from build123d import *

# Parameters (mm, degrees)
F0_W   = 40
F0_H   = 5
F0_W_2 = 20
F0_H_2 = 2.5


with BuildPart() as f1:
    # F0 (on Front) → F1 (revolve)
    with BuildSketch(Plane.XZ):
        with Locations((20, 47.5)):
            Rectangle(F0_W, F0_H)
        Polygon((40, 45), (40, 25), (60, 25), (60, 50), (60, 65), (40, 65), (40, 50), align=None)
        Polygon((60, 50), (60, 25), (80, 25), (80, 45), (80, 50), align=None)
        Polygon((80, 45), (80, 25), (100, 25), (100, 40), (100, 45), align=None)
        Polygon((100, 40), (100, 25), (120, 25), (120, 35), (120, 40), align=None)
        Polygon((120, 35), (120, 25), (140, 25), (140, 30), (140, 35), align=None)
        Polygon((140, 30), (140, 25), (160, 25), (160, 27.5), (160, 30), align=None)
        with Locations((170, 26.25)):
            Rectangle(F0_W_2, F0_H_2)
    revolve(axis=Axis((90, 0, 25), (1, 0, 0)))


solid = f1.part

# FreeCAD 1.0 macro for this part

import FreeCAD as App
import Part
import Sketcher

V = App.Vector
Q = App.Units.Quantity

doc = App.newDocument("Part")
params = doc.addObject("Spreadsheet::Sheet", "Params")
for row, (alias, value) in enumerate([
    ("sketch1_width", "40 mm"),
    ("sketch1_width2", "140 mm"),
    ("sketch1_height", "5 mm"),
    ("sketch1_height2", "15 mm"),
    ("revolution_angle", "360 deg"),
], start=1):
    params.set(f"A{row}", alias)
    params.set(f"B{row}", "=" + value)
    params.setAlias(f"B{row}", alias)

body = doc.addObject("PartDesign::Body", "Body")

sketch1 = body.newObject("Sketcher::SketchObject", "Sketch")
sketch1.AttachmentSupport = (doc.getObject("XZ_Plane"), [""])
sketch1.MapMode = "FlatFace"
sketch1.addGeometry(Part.LineSegment(V(0, 50, 0), V(0, 45, 0)), False)
sketch1.addGeometry(Part.LineSegment(V(0, 45, 0), V(40, 45, 0)), False)
sketch1.addGeometry(Part.LineSegment(V(40, 45, 0), V(40, 25, 0)), False)
sketch1.addGeometry(Part.LineSegment(V(40, 25, 0), V(180, 25, 0)), False)
sketch1.addGeometry(Part.LineSegment(V(180, 25, 0), V(180, 27.5, 0)), False)
sketch1.addGeometry(Part.LineSegment(V(180, 27.5, 0), V(160, 27.5, 0)), False)
sketch1.addGeometry(Part.LineSegment(V(160, 27.5, 0), V(160, 30, 0)), False)
sketch1.addGeometry(Part.LineSegment(V(160, 30, 0), V(140, 30, 0)), False)
sketch1.addGeometry(Part.LineSegment(V(140, 30, 0), V(140, 35, 0)), False)
sketch1.addGeometry(Part.LineSegment(V(140, 35, 0), V(120, 35, 0)), False)
sketch1.addGeometry(Part.LineSegment(V(120, 35, 0), V(120, 40, 0)), False)
sketch1.addGeometry(Part.LineSegment(V(120, 40, 0), V(100, 40, 0)), False)
sketch1.addGeometry(Part.LineSegment(V(100, 40, 0), V(100, 45, 0)), False)
sketch1.addGeometry(Part.LineSegment(V(100, 45, 0), V(80, 45, 0)), False)
sketch1.addGeometry(Part.LineSegment(V(80, 45, 0), V(80, 50, 0)), False)
sketch1.addGeometry(Part.LineSegment(V(80, 50, 0), V(60, 50, 0)), False)
sketch1.addGeometry(Part.LineSegment(V(60, 50, 0), V(60, 65, 0)), False)
sketch1.addGeometry(Part.LineSegment(V(60, 65, 0), V(40, 65, 0)), False)
sketch1.addGeometry(Part.LineSegment(V(40, 65, 0), V(40, 50, 0)), False)
sketch1.addGeometry(Part.LineSegment(V(40, 50, 0), V(0, 50, 0)), False)
sketch1.addGeometry(Part.LineSegment(V(0, 25, 0), V(180, 25, 0)), True)
sketch1.addConstraint(Sketcher.Constraint("Coincident", 0, 2, 1, 1))
sketch1.addConstraint(Sketcher.Constraint("Coincident", 1, 2, 2, 1))
sketch1.addConstraint(Sketcher.Constraint("Coincident", 2, 2, 3, 1))
sketch1.addConstraint(Sketcher.Constraint("Coincident", 3, 2, 4, 1))
sketch1.addConstraint(Sketcher.Constraint("Coincident", 4, 2, 5, 1))
sketch1.addConstraint(Sketcher.Constraint("Coincident", 5, 2, 6, 1))
sketch1.addConstraint(Sketcher.Constraint("Coincident", 6, 2, 7, 1))
sketch1.addConstraint(Sketcher.Constraint("Coincident", 7, 2, 8, 1))
sketch1.addConstraint(Sketcher.Constraint("Coincident", 8, 2, 9, 1))
sketch1.addConstraint(Sketcher.Constraint("Coincident", 9, 2, 10, 1))
sketch1.addConstraint(Sketcher.Constraint("Coincident", 10, 2, 11, 1))
sketch1.addConstraint(Sketcher.Constraint("Coincident", 11, 2, 12, 1))
sketch1.addConstraint(Sketcher.Constraint("Coincident", 12, 2, 13, 1))
sketch1.addConstraint(Sketcher.Constraint("Coincident", 13, 2, 14, 1))
sketch1.addConstraint(Sketcher.Constraint("Coincident", 14, 2, 15, 1))
sketch1.addConstraint(Sketcher.Constraint("Coincident", 15, 2, 16, 1))
sketch1.addConstraint(Sketcher.Constraint("Coincident", 16, 2, 17, 1))
sketch1.addConstraint(Sketcher.Constraint("Coincident", 17, 2, 18, 1))
sketch1.addConstraint(Sketcher.Constraint("Coincident", 18, 2, 19, 1))
sketch1.addConstraint(Sketcher.Constraint("Coincident", 19, 2, 0, 1))
sketch1.addConstraint(Sketcher.Constraint("Vertical", 0))
sketch1.addConstraint(Sketcher.Constraint("Horizontal", 1))
sketch1.addConstraint(Sketcher.Constraint("Vertical", 2))
sketch1.addConstraint(Sketcher.Constraint("Horizontal", 3))
sketch1.addConstraint(Sketcher.Constraint("Vertical", 4))
sketch1.addConstraint(Sketcher.Constraint("Horizontal", 5))
sketch1.addConstraint(Sketcher.Constraint("Vertical", 6))
sketch1.addConstraint(Sketcher.Constraint("Horizontal", 7))
sketch1.addConstraint(Sketcher.Constraint("Vertical", 8))
sketch1.addConstraint(Sketcher.Constraint("Horizontal", 9))
sketch1.addConstraint(Sketcher.Constraint("Vertical", 10))
sketch1.addConstraint(Sketcher.Constraint("Horizontal", 11))
sketch1.addConstraint(Sketcher.Constraint("Vertical", 12))
sketch1.addConstraint(Sketcher.Constraint("Horizontal", 13))
sketch1.addConstraint(Sketcher.Constraint("Vertical", 14))
sketch1.addConstraint(Sketcher.Constraint("Horizontal", 15))
sketch1.addConstraint(Sketcher.Constraint("Vertical", 16))
sketch1.addConstraint(Sketcher.Constraint("Horizontal", 17))
sketch1.addConstraint(Sketcher.Constraint("Vertical", 18))
sketch1.addConstraint(Sketcher.Constraint("Horizontal", 19))
sketch1.addConstraint(Sketcher.Constraint("Horizontal", 20))
sketch1.addConstraint(Sketcher.Constraint("Coincident", 20, 2, 3, 2))
sketch1.addConstraint(Sketcher.Constraint("PointOnObject", 0, 2, -2))
sketch1.addConstraint(Sketcher.Constraint("PointOnObject", 20, 1, -2))
sketch1.addConstraint(Sketcher.Constraint("Horizontal", 1, 2, 12, 2))
sketch1.addConstraint(Sketcher.Constraint("Horizontal", 15, 2, 18, 2))
sketch1.addConstraint(Sketcher.Constraint("Vertical", 2, 2, 17, 2))
sketch1.addConstraint(Sketcher.Constraint("Equal", 5, 7))
sketch1.addConstraint(Sketcher.Constraint("Equal", 7, 9))
sketch1.addConstraint(Sketcher.Constraint("Equal", 9, 11))
sketch1.addConstraint(Sketcher.Constraint("Equal", 11, 13))
sketch1.addConstraint(Sketcher.Constraint("Equal", 13, 15))
sketch1.addConstraint(Sketcher.Constraint("Equal", 15, 17))
sketch1.addConstraint(Sketcher.Constraint("Equal", 17, 2))
sketch1.addConstraint(Sketcher.Constraint("Equal", 4, 6))
sketch1.addConstraint(Sketcher.Constraint("Equal", 0, 8))
sketch1.addConstraint(Sketcher.Constraint("Equal", 8, 10))
sketch1.addConstraint(Sketcher.Constraint("Equal", 10, 12))
sketch1.addConstraint(Sketcher.Constraint("DistanceX", 1, 1, 1, 2, Q("40 mm")))
sketch1.addConstraint(Sketcher.Constraint("DistanceX", 3, 1, 3, 2, Q("140 mm")))
sketch1.addConstraint(Sketcher.Constraint("DistanceY", 0, 2, 0, 1, Q("5 mm")))
sketch1.addConstraint(Sketcher.Constraint("DistanceY", 16, 1, 16, 2, Q("15 mm")))
sketch1.addConstraint(Sketcher.Constraint("DistanceY", -1, 1, 0, 2, Q("45 mm")))
sketch1.setExpression("Constraints[58]", "Params.sketch1_width")
sketch1.setExpression("Constraints[59]", "Params.sketch1_width2")
sketch1.setExpression("Constraints[60]", "Params.sketch1_height")
sketch1.setExpression("Constraints[61]", "Params.sketch1_height2")
revolution = body.newObject("PartDesign::Revolution", "Revolution")
revolution.Profile = sketch1
revolution.ReferenceAxis = (sketch1, ["Axis0"])
revolution.setExpression("Angle", "Params.revolution_angle")

doc.recompute()
